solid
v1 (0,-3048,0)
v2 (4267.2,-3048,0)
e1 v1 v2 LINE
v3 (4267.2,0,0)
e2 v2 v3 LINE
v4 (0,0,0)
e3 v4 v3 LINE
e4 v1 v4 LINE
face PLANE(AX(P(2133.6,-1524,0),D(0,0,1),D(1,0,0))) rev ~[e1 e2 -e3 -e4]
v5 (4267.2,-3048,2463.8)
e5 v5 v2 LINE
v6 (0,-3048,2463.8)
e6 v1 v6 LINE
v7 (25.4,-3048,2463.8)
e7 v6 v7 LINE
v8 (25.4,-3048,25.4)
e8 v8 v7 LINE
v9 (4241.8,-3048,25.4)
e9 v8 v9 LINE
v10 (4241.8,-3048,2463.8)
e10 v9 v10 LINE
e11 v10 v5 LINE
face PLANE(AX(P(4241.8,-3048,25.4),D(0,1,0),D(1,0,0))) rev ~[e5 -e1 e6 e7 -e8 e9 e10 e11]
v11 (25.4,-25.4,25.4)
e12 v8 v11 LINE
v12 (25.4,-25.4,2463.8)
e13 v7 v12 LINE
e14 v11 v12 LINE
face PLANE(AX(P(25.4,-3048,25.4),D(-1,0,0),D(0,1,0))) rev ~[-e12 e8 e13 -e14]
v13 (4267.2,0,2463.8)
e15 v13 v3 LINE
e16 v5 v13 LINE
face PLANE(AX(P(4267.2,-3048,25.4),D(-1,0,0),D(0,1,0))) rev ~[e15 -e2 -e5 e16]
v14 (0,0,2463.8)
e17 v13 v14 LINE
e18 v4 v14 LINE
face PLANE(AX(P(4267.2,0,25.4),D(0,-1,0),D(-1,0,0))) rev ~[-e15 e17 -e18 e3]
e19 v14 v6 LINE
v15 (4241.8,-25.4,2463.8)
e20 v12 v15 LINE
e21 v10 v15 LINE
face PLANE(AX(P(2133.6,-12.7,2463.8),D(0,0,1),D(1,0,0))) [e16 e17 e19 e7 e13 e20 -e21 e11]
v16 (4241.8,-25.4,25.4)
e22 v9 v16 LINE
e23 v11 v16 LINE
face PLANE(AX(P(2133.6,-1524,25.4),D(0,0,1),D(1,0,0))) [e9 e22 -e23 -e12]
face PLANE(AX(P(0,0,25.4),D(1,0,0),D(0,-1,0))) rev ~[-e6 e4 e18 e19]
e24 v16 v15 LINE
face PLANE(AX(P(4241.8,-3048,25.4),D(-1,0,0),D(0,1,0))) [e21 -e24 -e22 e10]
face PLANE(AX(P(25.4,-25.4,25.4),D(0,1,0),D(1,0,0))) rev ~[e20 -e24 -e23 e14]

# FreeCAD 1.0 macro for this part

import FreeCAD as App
import Part
import Sketcher
Q = App.Units.Quantity

doc = App.newDocument("Part")
body = doc.addObject("PartDesign::Body", "Body")

# Sketch on XY plane
sketch1 = doc.addObject("Sketcher::SketchObject", "Sketch")
body.addObject(sketch1)
sketch1.AttachmentSupport = (doc.XY_Plane, [""])
sketch1.MapMode = "FlatFace"
sketch1.addGeometry([
    Part.LineSegment(App.Vector(0, 0, 0), App.Vector(0, -3048, 0)),
    Part.LineSegment(App.Vector(0, -3048, 0), App.Vector(4267, -3048, 0)),
    Part.LineSegment(App.Vector(4267, -3048, 0), App.Vector(4267, 0, 0)),
    Part.LineSegment(App.Vector(4267, 0, 0), App.Vector(0, 0, 0)),
], False)
sketch1.addConstraint([
    Sketcher.Constraint("Coincident", 0, 2, 1, 1),
    Sketcher.Constraint("Coincident", 1, 2, 2, 1),
    Sketcher.Constraint("Coincident", 2, 2, 3, 1),
    Sketcher.Constraint("Coincident", 3, 2, 0, 1),
    Sketcher.Constraint("Vertical", 0),
    Sketcher.Constraint("Horizontal", 1),
    Sketcher.Constraint("Vertical", 2),
    Sketcher.Constraint("Horizontal", 3),
    Sketcher.Constraint("Coincident", 3, 2, -1, 1),
    Sketcher.Constraint("DistanceX", 1, 1, 1, 2, Q("168 in")),
    Sketcher.Constraint("DistanceY", 0, 2, 0, 1, Q("120 in")),
])
pad1 = doc.addObject("PartDesign::Pad", "Pad")
body.addObject(pad1)
pad1.Profile = sketch1
pad1.Length = Q("1 in")

# Sketch on XY plane
sketch2 = doc.addObject("Sketcher::SketchObject", "Sketch001")
body.addObject(sketch2)
sketch2.AttachmentSupport = (doc.XY_Plane, [""])
sketch2.MapMode = "FlatFace"
sketch2.AttachmentOffset = App.Placement(App.Vector(0, 0, 1 * 25.4), App.Rotation())
sketch2.addGeometry([
    Part.LineSegment(App.Vector(4267, 0, 0), App.Vector(0, 0, 0)),  # 0
    Part.LineSegment(App.Vector(0, 0, 0), App.Vector(0, -3048, 0)),  # 1
    Part.LineSegment(App.Vector(0, -3048, 0), App.Vector(25, -3048, 0)),  # 2
    Part.LineSegment(App.Vector(25, -3048, 0), App.Vector(25, -25, 0)),  # 3
    Part.LineSegment(App.Vector(25, -25, 0), App.Vector(4242, -25, 0)),  # 4
    Part.LineSegment(App.Vector(4242, -25, 0), App.Vector(4242, -3048, 0)),  # 5
    Part.LineSegment(App.Vector(4242, -3048, 0), App.Vector(4267, -3048, 0)),  # 6
    Part.LineSegment(App.Vector(4267, -3048, 0), App.Vector(4267, 0, 0)),  # 7
], False)
sketch2.addConstraint([
    Sketcher.Constraint("Coincident", 0, 2, 1, 1),
    Sketcher.Constraint("Coincident", 1, 2, 2, 1),
    Sketcher.Constraint("Coincident", 2, 2, 3, 1),
    Sketcher.Constraint("Coincident", 3, 2, 4, 1),
    Sketcher.Constraint("Coincident", 4, 2, 5, 1),
    Sketcher.Constraint("Coincident", 5, 2, 6, 1),
    Sketcher.Constraint("Coincident", 6, 2, 7, 1),
    Sketcher.Constraint("Coincident", 7, 2, 0, 1),
    Sketcher.Constraint("Horizontal", 0),
    Sketcher.Constraint("Vertical", 1),
    Sketcher.Constraint("Horizontal", 2),
    Sketcher.Constraint("Vertical", 3),
    Sketcher.Constraint("Horizontal", 4),
    Sketcher.Constraint("Vertical", 5),
    Sketcher.Constraint("Horizontal", 6),
    Sketcher.Constraint("Vertical", 7),
    Sketcher.Constraint("Coincident", 0, 2, -1, 1),
    Sketcher.Constraint("Horizontal", 2, 2, 5, 2),
    Sketcher.Constraint("Equal", 2, 6),
    Sketcher.Constraint("DistanceX", 0, 2, 0, 1, Q("168 in")),
    Sketcher.Constraint("DistanceX", 2, 1, 2, 2, Q("1 in")),
    Sketcher.Constraint("DistanceY", 1, 2, 1, 1, Q("120 in")),
    Sketcher.Constraint("DistanceY", 3, 1, 3, 2, Q("119 in")),
])
pad2 = doc.addObject("PartDesign::Pad", "Pad001")
body.addObject(pad2)
pad2.Profile = sketch2
pad2.Length = Q("96 in")

doc.recompute()
